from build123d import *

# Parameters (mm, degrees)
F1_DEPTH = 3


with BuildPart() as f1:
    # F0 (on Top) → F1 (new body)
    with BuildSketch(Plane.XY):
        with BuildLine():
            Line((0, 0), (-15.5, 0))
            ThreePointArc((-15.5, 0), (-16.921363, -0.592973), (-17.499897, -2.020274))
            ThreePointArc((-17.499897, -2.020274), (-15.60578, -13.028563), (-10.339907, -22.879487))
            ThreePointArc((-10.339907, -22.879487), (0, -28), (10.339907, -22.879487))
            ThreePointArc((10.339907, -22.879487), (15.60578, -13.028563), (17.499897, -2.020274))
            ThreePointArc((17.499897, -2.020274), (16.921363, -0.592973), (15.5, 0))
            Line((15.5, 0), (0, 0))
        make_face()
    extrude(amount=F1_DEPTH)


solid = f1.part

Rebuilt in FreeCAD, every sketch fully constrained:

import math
import FreeCAD as App
import Part
import Sketcher

V = App.Vector
Q = App.Units.Quantity

doc = App.newDocument("Part")
body = doc.addObject("PartDesign::Body", "Body")

sketch1 = body.newObject("Sketcher::SketchObject", "Sketch")
sketch1.AttachmentSupport = (doc.getObject("XY_Plane"), [""])
sketch1.MapMode = "FlatFace"
sketch1.addGeometry([
    Part.ArcOfCircle(Part.Circle(V(-15.5, -2, 0), V(0, 0, 1), 2), math.radians(90), math.radians(181)),
    Part.ArcOfCircle(Part.Circle(V(17.5, -1.7, 0), V(0, 0, 1), 35), math.radians(-179), math.radians(-143)),
    Part.ArcOfCircle(Part.Circle(V(0, -15, 0), V(0, 0, 1), 13), math.radians(-143), math.radians(-37)),
    Part.ArcOfCircle(Part.Circle(V(-17.5, -1.7, 0), V(0, 0, 1), 35), math.radians(-37), math.radians(-1)),
    Part.ArcOfCircle(Part.Circle(V(15.5, -2, 0), V(0, 0, 1), 2), math.radians(-1), math.radians(90)),
    Part.LineSegment(V(15.5, 0, 0), V(-15.5, 0, 0)),
], False)
sketch1.addConstraint([
    Sketcher.Constraint("Tangent", 0, 2, 1, 1),
    Sketcher.Constraint("Tangent", 1, 2, 2, 1),
    Sketcher.Constraint("Tangent", 2, 2, 3, 1),
    Sketcher.Constraint("Tangent", 3, 2, 4, 1),
    Sketcher.Constraint("Tangent", 4, 2, 5, 1),
    Sketcher.Constraint("Tangent", 5, 2, 0, 1),
    Sketcher.Constraint("Horizontal", 5),
    Sketcher.Constraint("Equal", 1, 3),
    Sketcher.Constraint("Equal", 0, 4),
    Sketcher.Constraint("Symmetric", 4, 2, 5, 2, -1, 1),
    Sketcher.Constraint("PointOnObject", 2, 3, -2),
    Sketcher.Constraint("Radius", 0, Q("2.000001 mm")),
    Sketcher.Constraint("Radius", 2, Q("12.999999 mm")),
    Sketcher.Constraint("DistanceX", 5, 2, 5, 1, Q("31 mm")),
    Sketcher.Constraint("DistanceY", 2, 3, -1, 1, Q("15.000001 mm")),
    Sketcher.Constraint("Radius", 1, Q("34.999996 mm")),
])
pad1 = body.newObject("PartDesign::Pad", "Pad")
pad1.Profile = sketch1
pad1.Length = 3

doc.recompute()
